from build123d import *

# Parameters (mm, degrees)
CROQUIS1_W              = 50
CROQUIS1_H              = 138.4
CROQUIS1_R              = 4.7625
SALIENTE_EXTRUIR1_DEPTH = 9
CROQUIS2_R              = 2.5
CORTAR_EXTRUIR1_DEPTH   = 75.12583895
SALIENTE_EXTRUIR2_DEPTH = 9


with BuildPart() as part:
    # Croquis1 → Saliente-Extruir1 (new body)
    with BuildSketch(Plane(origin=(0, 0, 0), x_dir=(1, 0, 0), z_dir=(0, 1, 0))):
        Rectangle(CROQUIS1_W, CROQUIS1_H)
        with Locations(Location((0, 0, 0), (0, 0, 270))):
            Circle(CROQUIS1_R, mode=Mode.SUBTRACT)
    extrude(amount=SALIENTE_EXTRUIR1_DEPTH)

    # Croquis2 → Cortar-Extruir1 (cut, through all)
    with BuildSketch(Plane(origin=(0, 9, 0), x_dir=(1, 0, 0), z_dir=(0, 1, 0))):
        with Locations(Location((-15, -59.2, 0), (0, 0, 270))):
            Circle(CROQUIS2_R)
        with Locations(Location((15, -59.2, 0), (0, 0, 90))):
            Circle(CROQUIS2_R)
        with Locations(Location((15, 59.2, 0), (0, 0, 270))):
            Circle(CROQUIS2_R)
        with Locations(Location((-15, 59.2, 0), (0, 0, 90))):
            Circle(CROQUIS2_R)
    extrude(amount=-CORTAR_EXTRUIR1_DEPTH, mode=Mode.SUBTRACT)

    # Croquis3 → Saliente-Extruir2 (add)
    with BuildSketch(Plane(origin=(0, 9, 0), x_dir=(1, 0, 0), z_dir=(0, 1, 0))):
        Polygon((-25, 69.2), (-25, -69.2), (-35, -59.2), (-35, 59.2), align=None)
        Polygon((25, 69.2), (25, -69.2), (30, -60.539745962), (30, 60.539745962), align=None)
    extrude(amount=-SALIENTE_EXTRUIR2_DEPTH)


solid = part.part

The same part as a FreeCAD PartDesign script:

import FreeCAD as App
import Part
import Sketcher
Q = App.Units.Quantity

doc = App.newDocument("Part")
body = doc.addObject("PartDesign::Body", "Body")

# Sketch on XZ plane
sketch1 = doc.addObject("Sketcher::SketchObject", "Sketch")
body.addObject(sketch1)
sketch1.AttachmentSupport = (doc.XZ_Plane, [""])
sketch1.MapMode = "FlatFace"
sketch1.addGeometry(Part.LineSegment(App.Vector(-25, -69.2, 0), App.Vector(-25, 69.2, 0)), False)
sketch1.addGeometry(Part.LineSegment(App.Vector(-25, 69.2, 0), App.Vector(25, 69.2, 0)), False)
sketch1.addGeometry(Part.LineSegment(App.Vector(25, 69.2, 0), App.Vector(25, -69.2, 0)), False)
sketch1.addGeometry(Part.LineSegment(App.Vector(25, -69.2, 0), App.Vector(-25, -69.2, 0)), False)
sketch1.addGeometry(Part.Circle(App.Vector(0, 0, 0), App.Vector(0, 0, 1), 4.8), False)
sketch1.addConstraint(Sketcher.Constraint("Coincident", 0, 2, 1, 1))
sketch1.addConstraint(Sketcher.Constraint("Coincident", 1, 2, 2, 1))
sketch1.addConstraint(Sketcher.Constraint("Coincident", 2, 2, 3, 1))
sketch1.addConstraint(Sketcher.Constraint("Coincident", 3, 2, 0, 1))
sketch1.addConstraint(Sketcher.Constraint("Vertical", 0))
sketch1.addConstraint(Sketcher.Constraint("Horizontal", 1))
sketch1.addConstraint(Sketcher.Constraint("Vertical", 2))
sketch1.addConstraint(Sketcher.Constraint("Horizontal", 3))
sketch1.addConstraint(Sketcher.Constraint("Coincident", 4, 3, -1, 1))
sketch1.addConstraint(Sketcher.Constraint("Symmetric", 0, 2, 2, 2, -1, 1))
sketch1.addConstraint(Sketcher.Constraint("DistanceX", 1, 1, 1, 2, 50.0))
sketch1.addConstraint(Sketcher.Constraint("Diameter", 4, 9.525))
sketch1.addConstraint(Sketcher.Constraint("DistanceY", 0, 1, 0, 2, 138.4))
pad1 = doc.addObject("PartDesign::Pad", "Pad")
body.addObject(pad1)
pad1.Profile = sketch1
pad1.Length = 9
pad1.Reversed = True

# Sketch on XZ plane
sketch2 = doc.addObject("Sketcher::SketchObject", "Sketch001")
body.addObject(sketch2)
sketch2.AttachmentSupport = (doc.XZ_Plane, [""])
sketch2.MapMode = "FlatFace"
sketch2.AttachmentOffset = App.Placement(App.Vector(0, 0, -9), App.Rotation())
sketch2.addGeometry(Part.Circle(App.Vector(-15, 59.2, 0), App.Vector(0, 0, 1), 2.5), False)
sketch2.addGeometry(Part.Circle(App.Vector(15, 59.2, 0), App.Vector(0, 0, 1), 2.5), False)
sketch2.addGeometry(Part.Circle(App.Vector(15, -59.2, 0), App.Vector(0, 0, 1), 2.5), False)
sketch2.addGeometry(Part.Circle(App.Vector(-15, -59.2, 0), App.Vector(0, 0, 1), 2.5), False)
sketch2.addConstraint(Sketcher.Constraint("Equal", 0, 1))
sketch2.addConstraint(Sketcher.Constraint("Equal", 1, 2))
sketch2.addConstraint(Sketcher.Constraint("Equal", 2, 3))
sketch2.addConstraint(Sketcher.Constraint("Symmetric", 0, 3, 2, 3, -1, 1))
sketch2.addConstraint(Sketcher.Constraint("Symmetric", 1, 3, 3, 3, -1, 1))
sketch2.addConstraint(Sketcher.Constraint("Symmetric", 0, 3, 1, 3, -2))
sketch2.addConstraint(Sketcher.Constraint("Diameter", 0, 5.0))
sketch2.addConstraint(Sketcher.Constraint("DistanceX", 0, 3, -1, 1, 15.0))
sketch2.addConstraint(Sketcher.Constraint("DistanceY", -1, 1, 0, 3, 59.2))
pocket1 = doc.addObject("PartDesign::Pocket", "Pocket")
body.addObject(pocket1)
pocket1.Profile = sketch2
pocket1.Type = "ThroughAll"
pocket1.Reversed = True

# Sketch on XZ plane
sketch3 = doc.addObject("Sketcher::SketchObject", "Sketch002")
body.addObject(sketch3)
sketch3.AttachmentSupport = (doc.XZ_Plane, [""])
sketch3.MapMode = "FlatFace"
sketch3.AttachmentOffset = App.Placement(App.Vector(0, 0, -9), App.Rotation())
sketch3.addGeometry(Part.LineSegment(App.Vector(-25, 69, 0), App.Vector(-25, -69, 0)), False)
sketch3.addGeometry(Part.LineSegment(App.Vector(-25, -69, 0), App.Vector(-35, -59, 0)), False)
sketch3.addGeometry(Part.LineSegment(App.Vector(-35, -59, 0), App.Vector(-35, 59, 0)), False)
sketch3.addGeometry(Part.LineSegment(App.Vector(-35, 59, 0), App.Vector(-25, 69, 0)), False)
sketch3.addGeometry(Part.LineSegment(App.Vector(25, -69, 0), App.Vector(25, 69, 0)), False)
sketch3.addGeometry(Part.LineSegment(App.Vector(25, 69, 0), App.Vector(30, 61, 0)), False)
sketch3.addGeometry(Part.LineSegment(App.Vector(30, 61, 0), App.Vector(30, -61, 0)), False)
sketch3.addGeometry(Part.LineSegment(App.Vector(30, -61, 0), App.Vector(25, -69, 0)), False)
sketch3.addConstraint(Sketcher.Constraint("Coincident", 0, 2, 1, 1))
sketch3.addConstraint(Sketcher.Constraint("Coincident", 1, 2, 2, 1))
sketch3.addConstraint(Sketcher.Constraint("Coincident", 2, 2, 3, 1))
sketch3.addConstraint(Sketcher.Constraint("Coincident", 3, 2, 0, 1))
sketch3.addConstraint(Sketcher.Constraint("Coincident", 4, 2, 5, 1))
sketch3.addConstraint(Sketcher.Constraint("Coincident", 5, 2, 6, 1))
sketch3.addConstraint(Sketcher.Constraint("Coincident", 6, 2, 7, 1))
sketch3.addConstraint(Sketcher.Constraint("Coincident", 7, 2, 4, 1))
sketch3.addConstraint(Sketcher.Constraint("Vertical", 0))
sketch3.addConstraint(Sketcher.Constraint("Vertical", 2))
sketch3.addConstraint(Sketcher.Constraint("Vertical", 4))
sketch3.addConstraint(Sketcher.Constraint("Vertical", 6))
sketch3.addConstraint(Sketcher.Constraint("Symmetric", 0, 2, 4, 2, -1, 1))
sketch3.addConstraint(Sketcher.Constraint("Perpendicular", 1, 3))
sketch3.addConstraint(Sketcher.Constraint("Horizontal", 3, 2, 4, 2))
sketch3.addConstraint(Sketcher.Constraint("Horizontal", 0, 2, 7, 2))
sketch3.addConstraint(Sketcher.Constraint("Equal", 1, 3))
sketch3.addConstraint(Sketcher.Constraint("Equal", 5, 7))
sketch3.addConstraint(Sketcher.Constraint("Angle", 5, Q("-60 deg")))
sketch3.addConstraint(Sketcher.Constraint("Distance", 5, 10.0))
sketch3.addConstraint(Sketcher.Constraint("DistanceY", 0, 2, 0, 1, 138.4))
sketch3.addConstraint(Sketcher.Constraint("DistanceY", 2, 1, 2, 2, 118.4))
sketch3.addConstraint(Sketcher.Constraint("DistanceX", 0, 2, -1, 1, 25.0))
pad2 = doc.addObject("PartDesign::Pad", "Pad001")
body.addObject(pad2)
pad2.Profile = sketch3
pad2.Length = 9

doc.recompute()
